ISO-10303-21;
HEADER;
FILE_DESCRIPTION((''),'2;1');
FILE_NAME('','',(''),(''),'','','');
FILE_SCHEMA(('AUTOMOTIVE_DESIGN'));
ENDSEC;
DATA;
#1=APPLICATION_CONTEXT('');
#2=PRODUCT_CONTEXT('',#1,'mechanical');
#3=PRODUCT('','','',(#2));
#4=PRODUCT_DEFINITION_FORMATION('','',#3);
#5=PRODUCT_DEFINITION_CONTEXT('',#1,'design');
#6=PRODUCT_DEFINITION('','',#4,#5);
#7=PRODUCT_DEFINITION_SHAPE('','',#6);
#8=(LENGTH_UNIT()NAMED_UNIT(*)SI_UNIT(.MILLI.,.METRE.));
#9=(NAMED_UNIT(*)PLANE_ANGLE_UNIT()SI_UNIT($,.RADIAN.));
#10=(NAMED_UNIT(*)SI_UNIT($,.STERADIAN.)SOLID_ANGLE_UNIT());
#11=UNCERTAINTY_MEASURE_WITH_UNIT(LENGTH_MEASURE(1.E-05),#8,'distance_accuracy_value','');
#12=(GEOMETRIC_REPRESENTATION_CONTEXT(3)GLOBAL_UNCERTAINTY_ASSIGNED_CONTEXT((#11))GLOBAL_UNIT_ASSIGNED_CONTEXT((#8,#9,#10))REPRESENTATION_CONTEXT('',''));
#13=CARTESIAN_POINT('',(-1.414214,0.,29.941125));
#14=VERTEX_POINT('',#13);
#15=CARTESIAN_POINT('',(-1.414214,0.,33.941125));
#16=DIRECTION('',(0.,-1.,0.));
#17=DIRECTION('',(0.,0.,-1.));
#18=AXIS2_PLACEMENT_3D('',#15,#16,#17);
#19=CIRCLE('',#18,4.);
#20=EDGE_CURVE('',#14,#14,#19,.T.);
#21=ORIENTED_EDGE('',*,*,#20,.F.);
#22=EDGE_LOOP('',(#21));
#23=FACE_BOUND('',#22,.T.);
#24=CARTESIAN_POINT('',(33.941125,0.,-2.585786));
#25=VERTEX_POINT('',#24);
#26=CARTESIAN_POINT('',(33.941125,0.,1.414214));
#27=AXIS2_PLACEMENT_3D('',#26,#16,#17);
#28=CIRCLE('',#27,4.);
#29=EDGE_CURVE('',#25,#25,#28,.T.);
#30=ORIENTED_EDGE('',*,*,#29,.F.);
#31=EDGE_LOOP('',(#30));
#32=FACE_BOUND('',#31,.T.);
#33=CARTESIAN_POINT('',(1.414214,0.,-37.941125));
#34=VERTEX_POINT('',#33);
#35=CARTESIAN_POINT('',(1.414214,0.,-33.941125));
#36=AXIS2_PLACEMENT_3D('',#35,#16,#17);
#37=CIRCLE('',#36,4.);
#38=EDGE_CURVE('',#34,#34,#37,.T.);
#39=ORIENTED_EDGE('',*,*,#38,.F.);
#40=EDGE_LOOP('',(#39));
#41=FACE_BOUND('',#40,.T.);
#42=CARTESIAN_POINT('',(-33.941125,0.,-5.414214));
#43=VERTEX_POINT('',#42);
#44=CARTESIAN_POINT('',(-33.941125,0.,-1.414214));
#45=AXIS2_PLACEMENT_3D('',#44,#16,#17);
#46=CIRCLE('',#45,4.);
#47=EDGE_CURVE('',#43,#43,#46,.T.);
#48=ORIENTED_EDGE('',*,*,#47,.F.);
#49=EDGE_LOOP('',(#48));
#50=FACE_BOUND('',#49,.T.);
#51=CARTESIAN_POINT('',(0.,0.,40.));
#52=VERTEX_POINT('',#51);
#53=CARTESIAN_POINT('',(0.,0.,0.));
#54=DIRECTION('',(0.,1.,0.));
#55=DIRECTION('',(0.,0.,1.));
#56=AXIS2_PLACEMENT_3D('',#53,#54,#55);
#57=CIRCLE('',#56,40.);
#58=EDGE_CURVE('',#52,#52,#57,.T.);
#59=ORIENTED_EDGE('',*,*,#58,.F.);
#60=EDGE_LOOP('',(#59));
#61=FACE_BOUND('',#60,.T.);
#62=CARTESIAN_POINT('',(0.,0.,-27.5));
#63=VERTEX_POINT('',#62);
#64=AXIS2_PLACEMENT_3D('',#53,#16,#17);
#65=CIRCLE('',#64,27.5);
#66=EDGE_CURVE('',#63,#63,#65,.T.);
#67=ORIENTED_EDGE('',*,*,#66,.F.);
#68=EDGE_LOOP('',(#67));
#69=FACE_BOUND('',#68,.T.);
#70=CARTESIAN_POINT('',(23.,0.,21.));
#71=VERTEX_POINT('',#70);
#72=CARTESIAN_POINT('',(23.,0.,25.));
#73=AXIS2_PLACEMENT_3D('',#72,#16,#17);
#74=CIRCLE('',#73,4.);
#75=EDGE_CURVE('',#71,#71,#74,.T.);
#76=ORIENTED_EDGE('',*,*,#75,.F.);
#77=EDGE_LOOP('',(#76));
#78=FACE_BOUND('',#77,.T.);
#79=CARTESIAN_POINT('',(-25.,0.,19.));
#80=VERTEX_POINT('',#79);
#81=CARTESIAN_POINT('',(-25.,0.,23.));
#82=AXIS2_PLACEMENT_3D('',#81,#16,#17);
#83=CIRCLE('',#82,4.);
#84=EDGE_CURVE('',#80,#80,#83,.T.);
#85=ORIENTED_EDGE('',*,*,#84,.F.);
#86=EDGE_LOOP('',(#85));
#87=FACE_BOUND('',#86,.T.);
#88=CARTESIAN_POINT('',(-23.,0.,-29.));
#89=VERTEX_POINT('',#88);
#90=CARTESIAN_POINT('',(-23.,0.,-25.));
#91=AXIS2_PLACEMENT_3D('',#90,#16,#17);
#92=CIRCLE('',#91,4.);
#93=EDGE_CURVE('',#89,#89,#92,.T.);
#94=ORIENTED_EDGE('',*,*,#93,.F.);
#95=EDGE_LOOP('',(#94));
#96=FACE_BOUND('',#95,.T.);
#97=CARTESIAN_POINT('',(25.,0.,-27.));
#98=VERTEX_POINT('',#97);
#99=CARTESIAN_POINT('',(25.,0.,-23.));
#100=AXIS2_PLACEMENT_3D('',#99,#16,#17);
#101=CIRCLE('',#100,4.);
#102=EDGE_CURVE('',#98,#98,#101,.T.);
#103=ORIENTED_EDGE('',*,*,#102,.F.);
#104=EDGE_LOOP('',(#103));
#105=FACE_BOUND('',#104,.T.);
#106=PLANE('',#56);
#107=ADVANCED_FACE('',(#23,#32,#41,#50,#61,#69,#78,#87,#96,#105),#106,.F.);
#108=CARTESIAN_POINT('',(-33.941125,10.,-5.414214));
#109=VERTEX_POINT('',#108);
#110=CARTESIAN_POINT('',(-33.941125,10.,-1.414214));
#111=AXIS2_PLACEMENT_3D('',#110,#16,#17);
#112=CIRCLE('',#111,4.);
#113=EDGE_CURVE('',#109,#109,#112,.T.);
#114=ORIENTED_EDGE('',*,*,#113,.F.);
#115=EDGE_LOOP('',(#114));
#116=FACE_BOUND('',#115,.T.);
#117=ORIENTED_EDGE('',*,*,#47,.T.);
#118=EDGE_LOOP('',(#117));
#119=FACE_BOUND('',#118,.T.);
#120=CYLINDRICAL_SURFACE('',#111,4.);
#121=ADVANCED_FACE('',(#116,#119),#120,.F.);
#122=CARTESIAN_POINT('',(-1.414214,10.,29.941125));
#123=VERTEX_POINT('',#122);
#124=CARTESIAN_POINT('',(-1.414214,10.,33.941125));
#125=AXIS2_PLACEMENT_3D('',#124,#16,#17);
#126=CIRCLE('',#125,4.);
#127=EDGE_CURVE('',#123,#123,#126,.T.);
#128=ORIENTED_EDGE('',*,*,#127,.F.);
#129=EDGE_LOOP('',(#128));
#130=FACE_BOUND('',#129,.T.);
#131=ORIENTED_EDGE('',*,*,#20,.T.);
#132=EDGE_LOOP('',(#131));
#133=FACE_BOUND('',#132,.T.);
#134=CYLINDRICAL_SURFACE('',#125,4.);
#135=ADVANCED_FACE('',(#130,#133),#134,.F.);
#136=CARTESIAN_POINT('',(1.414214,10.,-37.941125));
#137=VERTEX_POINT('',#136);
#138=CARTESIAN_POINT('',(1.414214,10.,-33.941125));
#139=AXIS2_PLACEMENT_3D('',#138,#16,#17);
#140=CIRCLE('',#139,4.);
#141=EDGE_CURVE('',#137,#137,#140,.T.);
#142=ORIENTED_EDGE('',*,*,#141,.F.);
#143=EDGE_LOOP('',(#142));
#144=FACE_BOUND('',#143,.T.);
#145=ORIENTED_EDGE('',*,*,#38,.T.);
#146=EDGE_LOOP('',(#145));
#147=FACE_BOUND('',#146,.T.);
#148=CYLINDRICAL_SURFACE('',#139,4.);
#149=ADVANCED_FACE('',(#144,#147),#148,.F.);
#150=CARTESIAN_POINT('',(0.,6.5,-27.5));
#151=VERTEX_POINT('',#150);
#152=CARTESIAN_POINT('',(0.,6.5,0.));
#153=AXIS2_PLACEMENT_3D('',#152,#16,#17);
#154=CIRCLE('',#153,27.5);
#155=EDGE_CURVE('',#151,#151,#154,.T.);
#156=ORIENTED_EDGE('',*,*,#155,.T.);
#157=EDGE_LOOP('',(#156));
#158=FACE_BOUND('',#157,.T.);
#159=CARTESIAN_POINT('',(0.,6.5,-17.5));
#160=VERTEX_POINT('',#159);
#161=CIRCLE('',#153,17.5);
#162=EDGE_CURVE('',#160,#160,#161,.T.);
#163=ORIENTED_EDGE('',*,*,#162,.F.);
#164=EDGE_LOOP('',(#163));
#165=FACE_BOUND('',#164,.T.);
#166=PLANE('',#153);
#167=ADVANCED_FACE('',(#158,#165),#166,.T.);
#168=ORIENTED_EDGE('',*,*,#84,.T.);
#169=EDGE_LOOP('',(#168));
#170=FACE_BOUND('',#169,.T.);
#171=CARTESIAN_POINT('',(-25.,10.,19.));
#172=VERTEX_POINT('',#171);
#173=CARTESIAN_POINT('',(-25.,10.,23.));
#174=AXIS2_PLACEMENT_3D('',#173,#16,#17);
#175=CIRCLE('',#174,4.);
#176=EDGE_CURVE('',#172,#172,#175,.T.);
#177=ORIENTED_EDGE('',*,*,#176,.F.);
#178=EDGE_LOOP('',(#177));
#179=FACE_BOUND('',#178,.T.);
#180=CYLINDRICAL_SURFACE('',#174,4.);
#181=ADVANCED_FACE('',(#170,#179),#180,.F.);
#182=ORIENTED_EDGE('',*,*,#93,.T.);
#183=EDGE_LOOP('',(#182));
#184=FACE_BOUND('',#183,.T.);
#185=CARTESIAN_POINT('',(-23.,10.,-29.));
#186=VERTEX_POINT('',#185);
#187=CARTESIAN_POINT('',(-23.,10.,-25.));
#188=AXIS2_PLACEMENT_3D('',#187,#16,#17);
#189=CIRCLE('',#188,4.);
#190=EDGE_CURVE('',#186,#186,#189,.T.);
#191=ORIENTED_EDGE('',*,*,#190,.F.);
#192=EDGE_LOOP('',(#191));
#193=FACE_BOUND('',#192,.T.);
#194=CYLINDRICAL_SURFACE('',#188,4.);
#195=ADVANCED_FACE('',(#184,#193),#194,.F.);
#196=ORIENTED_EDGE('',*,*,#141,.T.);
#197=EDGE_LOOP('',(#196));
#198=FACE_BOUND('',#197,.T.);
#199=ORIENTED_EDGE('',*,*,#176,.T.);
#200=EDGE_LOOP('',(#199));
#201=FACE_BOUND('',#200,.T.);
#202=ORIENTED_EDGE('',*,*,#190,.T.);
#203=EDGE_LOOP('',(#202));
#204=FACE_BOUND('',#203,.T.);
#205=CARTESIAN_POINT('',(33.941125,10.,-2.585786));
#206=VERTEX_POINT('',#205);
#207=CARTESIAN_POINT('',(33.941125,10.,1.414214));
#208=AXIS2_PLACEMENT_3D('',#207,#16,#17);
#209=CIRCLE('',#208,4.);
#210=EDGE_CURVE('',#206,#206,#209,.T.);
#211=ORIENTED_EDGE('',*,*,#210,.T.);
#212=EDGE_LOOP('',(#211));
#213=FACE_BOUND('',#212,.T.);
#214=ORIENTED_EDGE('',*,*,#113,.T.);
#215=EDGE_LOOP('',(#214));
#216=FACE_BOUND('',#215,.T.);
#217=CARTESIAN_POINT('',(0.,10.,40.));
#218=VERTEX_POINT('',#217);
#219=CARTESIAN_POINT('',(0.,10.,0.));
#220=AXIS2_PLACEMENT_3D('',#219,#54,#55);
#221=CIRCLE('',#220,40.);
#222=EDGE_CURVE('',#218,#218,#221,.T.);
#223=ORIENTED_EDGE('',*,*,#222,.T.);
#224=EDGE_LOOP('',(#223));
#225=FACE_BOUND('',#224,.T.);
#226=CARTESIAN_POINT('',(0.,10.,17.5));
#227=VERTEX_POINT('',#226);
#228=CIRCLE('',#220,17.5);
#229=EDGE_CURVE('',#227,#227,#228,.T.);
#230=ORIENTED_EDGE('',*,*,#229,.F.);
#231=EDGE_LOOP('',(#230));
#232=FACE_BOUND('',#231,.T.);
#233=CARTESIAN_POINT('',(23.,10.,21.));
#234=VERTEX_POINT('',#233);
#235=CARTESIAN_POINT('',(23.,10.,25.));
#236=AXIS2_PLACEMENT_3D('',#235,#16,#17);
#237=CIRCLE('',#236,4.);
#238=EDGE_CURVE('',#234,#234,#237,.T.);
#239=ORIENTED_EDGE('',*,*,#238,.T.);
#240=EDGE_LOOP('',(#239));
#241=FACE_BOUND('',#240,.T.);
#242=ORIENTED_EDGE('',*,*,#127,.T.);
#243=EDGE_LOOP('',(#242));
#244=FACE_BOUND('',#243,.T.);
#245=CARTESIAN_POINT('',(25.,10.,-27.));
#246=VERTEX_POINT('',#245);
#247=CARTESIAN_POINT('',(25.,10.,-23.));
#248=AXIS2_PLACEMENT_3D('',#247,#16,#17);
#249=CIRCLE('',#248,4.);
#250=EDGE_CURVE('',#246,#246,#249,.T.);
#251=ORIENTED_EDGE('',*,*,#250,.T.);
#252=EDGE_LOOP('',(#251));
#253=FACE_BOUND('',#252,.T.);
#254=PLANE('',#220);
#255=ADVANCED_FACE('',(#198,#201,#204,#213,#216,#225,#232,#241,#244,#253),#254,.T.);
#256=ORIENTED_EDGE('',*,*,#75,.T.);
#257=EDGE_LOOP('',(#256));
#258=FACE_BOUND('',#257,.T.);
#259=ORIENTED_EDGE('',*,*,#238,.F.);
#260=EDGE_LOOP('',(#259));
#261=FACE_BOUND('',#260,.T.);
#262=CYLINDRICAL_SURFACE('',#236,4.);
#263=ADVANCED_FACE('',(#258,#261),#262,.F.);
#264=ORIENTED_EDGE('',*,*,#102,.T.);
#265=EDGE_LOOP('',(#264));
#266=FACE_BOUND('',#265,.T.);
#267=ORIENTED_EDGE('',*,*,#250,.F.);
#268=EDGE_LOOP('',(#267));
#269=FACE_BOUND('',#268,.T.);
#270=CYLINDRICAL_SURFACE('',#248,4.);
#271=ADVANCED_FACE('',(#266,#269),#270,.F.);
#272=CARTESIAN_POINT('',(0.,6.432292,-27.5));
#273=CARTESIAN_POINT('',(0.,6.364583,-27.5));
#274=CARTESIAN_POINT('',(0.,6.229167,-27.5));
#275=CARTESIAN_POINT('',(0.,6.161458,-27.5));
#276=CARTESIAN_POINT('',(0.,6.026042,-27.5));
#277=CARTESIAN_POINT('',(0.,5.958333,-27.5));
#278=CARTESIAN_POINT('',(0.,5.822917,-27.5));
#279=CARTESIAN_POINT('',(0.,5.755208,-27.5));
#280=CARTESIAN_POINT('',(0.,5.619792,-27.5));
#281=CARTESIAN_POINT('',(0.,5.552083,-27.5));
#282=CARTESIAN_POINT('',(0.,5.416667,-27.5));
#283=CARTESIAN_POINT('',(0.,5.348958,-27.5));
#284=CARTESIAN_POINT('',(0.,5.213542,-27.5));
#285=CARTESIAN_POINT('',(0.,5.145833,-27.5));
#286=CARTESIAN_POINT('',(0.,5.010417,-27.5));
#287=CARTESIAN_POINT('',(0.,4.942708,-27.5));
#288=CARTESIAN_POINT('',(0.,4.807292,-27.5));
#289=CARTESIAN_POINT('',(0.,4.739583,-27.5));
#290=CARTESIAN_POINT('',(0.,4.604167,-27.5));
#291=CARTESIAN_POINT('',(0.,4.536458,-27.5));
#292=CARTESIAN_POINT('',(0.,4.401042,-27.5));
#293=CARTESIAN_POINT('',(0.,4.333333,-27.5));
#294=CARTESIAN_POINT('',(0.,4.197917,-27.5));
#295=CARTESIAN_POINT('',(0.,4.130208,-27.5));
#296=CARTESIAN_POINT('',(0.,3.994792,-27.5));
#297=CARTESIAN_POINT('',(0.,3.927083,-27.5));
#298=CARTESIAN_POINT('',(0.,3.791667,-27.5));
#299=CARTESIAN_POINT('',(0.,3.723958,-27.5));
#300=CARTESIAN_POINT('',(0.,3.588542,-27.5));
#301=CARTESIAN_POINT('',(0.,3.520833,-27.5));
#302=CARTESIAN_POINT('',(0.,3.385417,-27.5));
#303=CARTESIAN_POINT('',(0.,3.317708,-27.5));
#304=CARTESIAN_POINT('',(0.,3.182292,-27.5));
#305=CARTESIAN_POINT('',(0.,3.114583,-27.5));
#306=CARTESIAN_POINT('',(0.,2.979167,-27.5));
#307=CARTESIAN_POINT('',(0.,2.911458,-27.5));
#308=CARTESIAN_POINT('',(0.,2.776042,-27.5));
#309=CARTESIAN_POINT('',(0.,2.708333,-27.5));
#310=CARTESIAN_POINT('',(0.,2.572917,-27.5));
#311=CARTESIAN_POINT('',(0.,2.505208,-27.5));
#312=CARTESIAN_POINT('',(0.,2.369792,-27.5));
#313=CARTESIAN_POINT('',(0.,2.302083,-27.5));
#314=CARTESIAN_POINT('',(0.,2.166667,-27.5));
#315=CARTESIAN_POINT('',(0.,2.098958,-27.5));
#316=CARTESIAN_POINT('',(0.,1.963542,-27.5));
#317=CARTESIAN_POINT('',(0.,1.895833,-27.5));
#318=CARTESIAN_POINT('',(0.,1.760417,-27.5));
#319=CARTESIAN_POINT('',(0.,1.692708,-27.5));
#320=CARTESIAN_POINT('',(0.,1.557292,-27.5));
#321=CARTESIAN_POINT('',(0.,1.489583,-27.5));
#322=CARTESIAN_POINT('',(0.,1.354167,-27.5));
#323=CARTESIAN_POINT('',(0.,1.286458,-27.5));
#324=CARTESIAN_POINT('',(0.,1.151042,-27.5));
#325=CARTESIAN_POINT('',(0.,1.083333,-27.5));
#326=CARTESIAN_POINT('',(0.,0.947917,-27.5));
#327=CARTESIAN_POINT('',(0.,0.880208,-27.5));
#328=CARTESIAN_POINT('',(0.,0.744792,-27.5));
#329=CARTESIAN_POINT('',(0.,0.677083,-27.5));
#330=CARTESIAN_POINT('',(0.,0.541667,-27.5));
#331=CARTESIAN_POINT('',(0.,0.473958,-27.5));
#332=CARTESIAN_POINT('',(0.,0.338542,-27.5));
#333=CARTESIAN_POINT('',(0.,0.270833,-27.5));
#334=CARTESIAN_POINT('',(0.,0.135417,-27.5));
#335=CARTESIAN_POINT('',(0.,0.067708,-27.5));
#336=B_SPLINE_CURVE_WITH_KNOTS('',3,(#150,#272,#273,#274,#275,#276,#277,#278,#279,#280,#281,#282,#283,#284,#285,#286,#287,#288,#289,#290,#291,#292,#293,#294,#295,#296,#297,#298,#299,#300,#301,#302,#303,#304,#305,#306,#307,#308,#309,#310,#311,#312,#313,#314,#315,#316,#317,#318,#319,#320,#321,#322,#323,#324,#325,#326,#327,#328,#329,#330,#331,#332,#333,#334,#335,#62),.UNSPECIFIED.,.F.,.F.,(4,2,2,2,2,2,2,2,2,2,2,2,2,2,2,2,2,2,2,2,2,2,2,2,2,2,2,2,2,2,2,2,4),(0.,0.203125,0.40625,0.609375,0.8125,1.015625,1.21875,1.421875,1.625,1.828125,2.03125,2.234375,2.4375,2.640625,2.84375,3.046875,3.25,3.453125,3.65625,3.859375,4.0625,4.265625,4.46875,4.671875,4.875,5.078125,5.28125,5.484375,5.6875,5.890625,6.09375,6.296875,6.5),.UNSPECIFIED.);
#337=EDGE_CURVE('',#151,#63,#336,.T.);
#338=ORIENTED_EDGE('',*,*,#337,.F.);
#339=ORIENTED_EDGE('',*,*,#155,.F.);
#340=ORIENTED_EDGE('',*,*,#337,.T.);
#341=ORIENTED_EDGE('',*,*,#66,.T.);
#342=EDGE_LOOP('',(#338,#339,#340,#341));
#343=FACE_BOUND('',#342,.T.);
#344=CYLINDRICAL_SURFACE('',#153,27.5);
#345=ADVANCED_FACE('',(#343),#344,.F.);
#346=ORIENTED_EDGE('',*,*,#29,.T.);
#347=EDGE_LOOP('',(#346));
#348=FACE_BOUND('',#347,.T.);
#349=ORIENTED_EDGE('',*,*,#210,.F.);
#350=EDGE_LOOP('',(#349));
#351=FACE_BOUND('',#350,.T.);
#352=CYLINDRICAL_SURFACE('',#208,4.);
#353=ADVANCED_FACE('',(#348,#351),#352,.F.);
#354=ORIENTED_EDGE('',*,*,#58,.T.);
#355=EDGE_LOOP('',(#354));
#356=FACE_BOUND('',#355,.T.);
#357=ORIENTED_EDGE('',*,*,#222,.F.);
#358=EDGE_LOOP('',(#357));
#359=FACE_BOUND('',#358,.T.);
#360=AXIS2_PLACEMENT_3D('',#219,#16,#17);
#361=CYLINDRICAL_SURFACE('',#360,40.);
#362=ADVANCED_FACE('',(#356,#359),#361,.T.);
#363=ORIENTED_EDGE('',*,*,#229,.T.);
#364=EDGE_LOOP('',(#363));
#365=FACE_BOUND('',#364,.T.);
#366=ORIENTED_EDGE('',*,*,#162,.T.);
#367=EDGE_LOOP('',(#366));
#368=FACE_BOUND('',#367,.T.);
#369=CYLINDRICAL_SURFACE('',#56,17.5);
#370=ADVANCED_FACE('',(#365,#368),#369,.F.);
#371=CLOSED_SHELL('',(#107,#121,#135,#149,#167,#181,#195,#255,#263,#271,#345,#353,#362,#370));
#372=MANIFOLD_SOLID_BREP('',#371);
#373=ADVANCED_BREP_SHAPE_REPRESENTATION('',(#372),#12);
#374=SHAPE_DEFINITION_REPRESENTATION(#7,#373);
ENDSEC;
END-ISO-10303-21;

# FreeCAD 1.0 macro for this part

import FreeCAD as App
import Part
import Sketcher

V = App.Vector
Q = App.Units.Quantity

doc = App.newDocument("Part")
body = doc.addObject("PartDesign::Body", "Body")

# Sketch on XZ plane
sketch1 = body.newObject("Sketcher::SketchObject", "Sketch")
sketch1.AttachmentSupport = (doc.getObject("XZ_Plane"), [""])
sketch1.MapMode = "FlatFace"
sketch1.addGeometry(Part.Circle(V(0, 0, 0), V(0, 0, 1), 40), False)
sketch1.addConstraint([
    Sketcher.Constraint("Coincident", 0, 3, -1, 1),
    Sketcher.Constraint("Diameter", 0, Q("80 mm")),
])
pad1 = body.newObject("PartDesign::Pad", "Pad")
pad1.Profile = sketch1
pad1.Length = 10
pad1.Reversed = True

# Sketch on XZ plane
sketch2 = body.newObject("Sketcher::SketchObject", "Sketch001")
sketch2.AttachmentSupport = (doc.getObject("XZ_Plane"), [""])
sketch2.MapMode = "FlatFace"
sketch2.addGeometry(Part.Circle(V(0, 0, 0), V(0, 0, 1), 28), False)
sketch2.addConstraint([
    Sketcher.Constraint("Coincident", 0, 3, -1, 1),
    Sketcher.Constraint("Diameter", 0, Q("55 mm")),
])
pocket1 = body.newObject("PartDesign::Pocket", "Pocket")
pocket1.Profile = sketch2
pocket1.Length = 6.5

# Sketch on XZ plane
sketch3 = body.newObject("Sketcher::SketchObject", "Sketch002")
sketch3.AttachmentSupport = (doc.getObject("XZ_Plane"), [""])
sketch3.MapMode = "FlatFace"
sketch3.AttachmentOffset = App.Placement(V(0, 0, -10), App.Rotation())
sketch3.addGeometry(Part.Circle(V(0, 0, 0), V(0, 0, 1), 18), False)
sketch3.addConstraint([
    Sketcher.Constraint("Coincident", 0, 3, -1, 1),
    Sketcher.Constraint("Diameter", 0, Q("35 mm")),
])
pocket2 = body.newObject("PartDesign::Pocket", "Pocket001")
pocket2.Profile = sketch3
pocket2.Type = "ThroughAll"
pocket2.Reversed = True

# Sketch on XZ plane
sketch4 = body.newObject("Sketcher::SketchObject", "Sketch003")
sketch4.AttachmentSupport = (doc.getObject("XZ_Plane"), [""])
sketch4.MapMode = "FlatFace"
sketch4.addGeometry([
    Part.Circle(V(-25, 23, 0), V(0, 0, 1), 4),  # 0
    Part.Circle(V(-1.4, 33.9, 0), V(0, 0, 1), 4),  # 1
    Part.Circle(V(23, 25, 0), V(0, 0, 1), 4),  # 2
    Part.Circle(V(33.9, 1.4, 0), V(0, 0, 1), 4),  # 3
    Part.Circle(V(25, -23, 0), V(0, 0, 1), 4),  # 4
    Part.Circle(V(1.4, -33.9, 0), V(0, 0, 1), 4),  # 5
    Part.Circle(V(-23, -25, 0), V(0, 0, 1), 4),  # 6
    Part.Circle(V(-33.9, -1.4, 0), V(0, 0, 1), 4),  # 7
], False)
sketch4.addConstraint([
    Sketcher.Constraint("Equal", 0, 1),
    Sketcher.Constraint("Equal", 1, 2),
    Sketcher.Constraint("Equal", 2, 3),
    Sketcher.Constraint("Equal", 3, 4),
    Sketcher.Constraint("Equal", 4, 5),
    Sketcher.Constraint("Equal", 5, 6),
    Sketcher.Constraint("Equal", 6, 7),
    Sketcher.Constraint("Symmetric", 0, 3, 4, 3, -1, 1),
    Sketcher.Constraint("Symmetric", 1, 3, 5, 3, -1, 1),
    Sketcher.Constraint("Symmetric", 2, 3, 6, 3, -1, 1),
    Sketcher.Constraint("Symmetric", 3, 3, 7, 3, -1, 1),
    Sketcher.Constraint("Diameter", 0, Q("8 mm")),
    Sketcher.Constraint("DistanceX", 0, 3, -1, 1, Q("25 mm")),
    Sketcher.Constraint("DistanceY", -1, 1, 0, 3, Q("23 mm")),
    Sketcher.Constraint("DistanceX", -1, 1, 2, 3, Q("23 mm")),
    Sketcher.Constraint("DistanceY", -1, 1, 2, 3, Q("25 mm")),
    Sketcher.Constraint("DistanceX", 1, 3, 3, 3, Q("35.355339 mm")),
    Sketcher.Constraint("DistanceY", 3, 3, 1, 3, Q("32.526912 mm")),
    Sketcher.Constraint("DistanceX", 5, 3, 3, 3, Q("32.526912 mm")),
    Sketcher.Constraint("DistanceY", 5, 3, 3, 3, Q("35.355339 mm")),
])
pocket3 = body.newObject("PartDesign::Pocket", "Pocket002")
pocket3.Profile = sketch4
pocket3.Type = "ThroughAll"

doc.recompute()
